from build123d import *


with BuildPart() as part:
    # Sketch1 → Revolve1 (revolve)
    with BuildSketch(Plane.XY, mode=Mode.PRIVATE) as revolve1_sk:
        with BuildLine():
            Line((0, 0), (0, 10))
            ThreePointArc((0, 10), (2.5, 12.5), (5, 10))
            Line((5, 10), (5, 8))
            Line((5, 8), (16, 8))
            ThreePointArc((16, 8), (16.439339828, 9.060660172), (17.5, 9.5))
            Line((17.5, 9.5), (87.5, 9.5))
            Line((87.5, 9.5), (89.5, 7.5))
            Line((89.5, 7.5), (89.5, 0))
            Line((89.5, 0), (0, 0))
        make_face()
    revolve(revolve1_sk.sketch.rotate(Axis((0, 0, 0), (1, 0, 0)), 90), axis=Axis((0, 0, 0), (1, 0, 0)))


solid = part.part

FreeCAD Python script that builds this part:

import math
import FreeCAD as App
import Part
import Sketcher
Q = App.Units.Quantity

doc = App.newDocument("Part")
body = doc.addObject("PartDesign::Body", "Body")

# Sketch on XY plane
sketch1 = body.newObject("Sketcher::SketchObject", "Sketch")
sketch1.AttachmentSupport = (doc.getObject("XY_Plane"), [""])
sketch1.MapMode = "FlatFace"
sketch1.addGeometry([
    Part.LineSegment(App.Vector(0, 10, 0), App.Vector(0, 0, 0)),  # 0
    Part.LineSegment(App.Vector(0, 0, 0), App.Vector(89.5, 0, 0)),  # 1
    Part.LineSegment(App.Vector(89.5, 0, 0), App.Vector(89.5, 7.5, 0)),  # 2
    Part.LineSegment(App.Vector(89.5, 7.5, 0), App.Vector(87.5, 9.5, 0)),  # 3
    Part.LineSegment(App.Vector(87.5, 9.5, 0), App.Vector(17.5, 9.5, 0)),  # 4
    Part.ArcOfCircle(Part.Circle(App.Vector(17.5, 8, 0), App.Vector(0, 0, 1), 1.5), math.radians(90), math.radians(180)),  # 5
    Part.LineSegment(App.Vector(16, 8, 0), App.Vector(5, 8, 0)),  # 6
    Part.LineSegment(App.Vector(5, 8, 0), App.Vector(5, 10, 0)),  # 7
    Part.ArcOfCircle(Part.Circle(App.Vector(2.5, 10, 0), App.Vector(0, 0, 1), 2.5), math.radians(0), math.radians(180)),  # 8
], False)
sketch1.addConstraint([
    Sketcher.Constraint("Coincident", 0, 2, 1, 1),
    Sketcher.Constraint("Coincident", 1, 2, 2, 1),
    Sketcher.Constraint("Coincident", 2, 2, 3, 1),
    Sketcher.Constraint("Coincident", 3, 2, 4, 1),
    Sketcher.Constraint("Tangent", 4, 2, 5, 1),
    Sketcher.Constraint("Coincident", 5, 2, 6, 1),
    Sketcher.Constraint("Coincident", 6, 2, 7, 1),
    Sketcher.Constraint("Tangent", 7, 2, 8, 1),
    Sketcher.Constraint("Tangent", 8, 2, 0, 1),
    Sketcher.Constraint("Vertical", 0),
    Sketcher.Constraint("Horizontal", 1),
    Sketcher.Constraint("Vertical", 2),
    Sketcher.Constraint("Horizontal", 4),
    Sketcher.Constraint("Horizontal", 6),
    Sketcher.Constraint("Vertical", 7),
    Sketcher.Constraint("Coincident", 0, 2, -1, 1),
    Sketcher.Constraint("Radius", 5, 1.5),
    Sketcher.Constraint("Radius", 8, 2.5),
    Sketcher.Constraint("DistanceX", 4, 2, 4, 1, 70.0),
    Sketcher.Constraint("DistanceX", 6, 2, 6, 1, 11.0),
    Sketcher.Constraint("DistanceY", 0, 2, 0, 1, 10.0),
    Sketcher.Constraint("DistanceY", 7, 1, 7, 2, 2.0),
    Sketcher.Constraint("Angle", 3, Q("135 deg")),
    Sketcher.Constraint("DistanceX", 1, 1, 1, 2, 89.5),
    Sketcher.Constraint("DistanceY", 2, 1, 2, 2, 7.5),
])
revolution = body.newObject("PartDesign::Revolution", "Revolution")
revolution.Profile = sketch1
revolution.ReferenceAxis = (sketch1, ["H_Axis"])
revolution.Angle = 360

doc.recompute()
